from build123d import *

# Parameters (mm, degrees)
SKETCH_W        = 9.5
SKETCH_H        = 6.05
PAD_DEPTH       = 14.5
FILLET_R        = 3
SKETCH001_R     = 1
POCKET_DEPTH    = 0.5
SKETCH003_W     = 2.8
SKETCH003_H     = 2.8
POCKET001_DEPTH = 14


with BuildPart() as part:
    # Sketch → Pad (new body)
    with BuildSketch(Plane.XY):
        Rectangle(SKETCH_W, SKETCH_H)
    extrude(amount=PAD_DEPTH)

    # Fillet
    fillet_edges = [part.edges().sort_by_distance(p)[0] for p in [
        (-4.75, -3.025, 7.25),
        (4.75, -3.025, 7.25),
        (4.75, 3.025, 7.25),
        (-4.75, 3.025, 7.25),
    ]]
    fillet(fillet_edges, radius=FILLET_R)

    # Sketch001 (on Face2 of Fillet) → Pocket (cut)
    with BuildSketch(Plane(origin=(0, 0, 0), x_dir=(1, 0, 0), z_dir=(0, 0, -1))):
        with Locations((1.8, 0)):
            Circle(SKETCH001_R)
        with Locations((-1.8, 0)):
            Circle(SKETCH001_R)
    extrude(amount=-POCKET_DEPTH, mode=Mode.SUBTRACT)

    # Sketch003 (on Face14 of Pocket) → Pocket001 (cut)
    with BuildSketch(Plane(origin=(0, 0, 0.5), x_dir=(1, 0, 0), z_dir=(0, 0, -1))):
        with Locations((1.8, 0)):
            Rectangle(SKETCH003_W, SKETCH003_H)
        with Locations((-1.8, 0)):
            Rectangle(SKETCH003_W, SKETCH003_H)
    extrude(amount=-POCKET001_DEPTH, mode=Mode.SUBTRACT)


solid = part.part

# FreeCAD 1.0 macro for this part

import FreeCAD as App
import Part
import Sketcher

V = App.Vector
Q = App.Units.Quantity


def edges_at(feature, points):
    """Names of the edges that pass closest to the given points."""
    edges = feature.Shape.Edges
    near = lambda p: min(range(len(edges)), key=lambda i: edges[i].distToShape(Part.Vertex(*p))[0])
    return sorted({f"Edge{near(p) + 1}" for p in points})


def add_polygon(sketch, points):
    """Adds a closed chain of lines whose ends are joined by coincident constraints."""
    first, n = sketch.GeometryCount, len(points)
    for a, b in zip(points, points[1:] + points[:1]):
        sketch.addGeometry(Part.LineSegment(App.Vector(*a, 0), App.Vector(*b, 0)), False)
    for i in range(n):
        sketch.addConstraint(Sketcher.Constraint("Coincident", first + i, 2, first + (i + 1) % n, 1))

doc = App.newDocument("Part")
params = doc.addObject("Spreadsheet::Sheet", "Params")
for row, (alias, value) in enumerate([
    ("sketch1_width", "9.5 mm"),
    ("sketch1_height", "6.05 mm"),
    ("pad1_length", "14.5 mm"),
    ("fillet_radius", "3 mm"),
    ("sketch2_diameter", "2 mm"),
    ("pocket1_length", "0.5 mm"),
    ("sketch3_width", "2.8 mm"),
    ("pocket2_length", "14 mm"),
], start=1):
    params.set(f"A{row}", alias)
    params.set(f"B{row}", "=" + value)
    params.setAlias(f"B{row}", alias)

body = doc.addObject("PartDesign::Body", "Body")

# Sketch on XY plane
sketch1 = body.newObject("Sketcher::SketchObject", "Sketch")
sketch1.AttachmentSupport = (doc.getObject("XY_Plane"), [""])
sketch1.MapMode = "FlatFace"
add_polygon(sketch1, [(-5, 3), (-5, -3), (5, -3), (5, 3)])  # lines 0-3
sketch1.addConstraint([
    Sketcher.Constraint("Vertical", 0),
    Sketcher.Constraint("Horizontal", 1),
    Sketcher.Constraint("Vertical", 2),
    Sketcher.Constraint("Horizontal", 3),
    Sketcher.Constraint("Symmetric", 0, 2, 2, 2, -1, 1),
    Sketcher.Constraint("DistanceX", 1, 1, 1, 2, Q("9.5 mm")),
    Sketcher.Constraint("DistanceY", 0, 2, 0, 1, Q("6.05 mm")),
])
sketch1.setExpression("Constraints[9]", "Params.sketch1_width")
sketch1.setExpression("Constraints[10]", "Params.sketch1_height")
pad1 = body.newObject("PartDesign::Pad", "Pad")
pad1.Profile = sketch1
pad1.setExpression("Length", "Params.pad1_length")
doc.recompute()

fillet = body.newObject("PartDesign::Fillet", "Fillet")
fillet.Base = (pad1, edges_at(pad1, [
    (-4.75, -3.025, 7.25),
    (4.75, -3.025, 7.25),
    (4.75, 3.025, 7.25),
    (-4.75, 3.025, 7.25),
]))
fillet.setExpression("Radius", "Params.fillet_radius")

# Sketch on XY plane
sketch2 = body.newObject("Sketcher::SketchObject", "Sketch001")
sketch2.AttachmentSupport = (doc.getObject("XY_Plane"), [""])
sketch2.MapMode = "FlatFace"
sketch2.addGeometry([
    Part.Circle(V(1.8, 0, 0), V(0, 0, 1), 1),
    Part.Circle(V(-1.8, 0, 0), V(0, 0, 1), 1),
], False)
sketch2.addConstraint([
    Sketcher.Constraint("Equal", 0, 1),
    Sketcher.Constraint("Symmetric", 0, 3, 1, 3, -1, 1),
    Sketcher.Constraint("PointOnObject", 0, 3, -1),
    Sketcher.Constraint("Diameter", 0, Q("2 mm")),
    Sketcher.Constraint("DistanceX", -1, 1, 0, 3, Q("1.8 mm")),
])
sketch2.setExpression("Constraints[3]", "Params.sketch2_diameter")
pocket1 = body.newObject("PartDesign::Pocket", "Pocket")
pocket1.Profile = sketch2
pocket1.setExpression("Length", "Params.pocket1_length")
pocket1.Reversed = True

# Sketch on XY plane
sketch3 = body.newObject("Sketcher::SketchObject", "Sketch002")
sketch3.AttachmentSupport = (doc.getObject("XY_Plane"), [""])
sketch3.MapMode = "FlatFace"
sketch3.AttachmentOffset = App.Placement(V(0, 0, 0.5), App.Rotation())
add_polygon(sketch3, [(0.4, -1.4), (0.4, 1.4), (3.2, 1.4), (3.2, -1.4)])  # lines 0-3
add_polygon(sketch3, [(-3.2, -1.4), (-3.2, 1.4), (-0.4, 1.4), (-0.4, -1.4)])  # lines 4-7
sketch3.addConstraint([
    Sketcher.Constraint("Vertical", 0),
    Sketcher.Constraint("Horizontal", 1),
    Sketcher.Constraint("Vertical", 2),
    Sketcher.Constraint("Horizontal", 3),
    Sketcher.Constraint("Vertical", 4),
    Sketcher.Constraint("Horizontal", 5),
    Sketcher.Constraint("Vertical", 6),
    Sketcher.Constraint("Horizontal", 7),
    Sketcher.Constraint("Symmetric", 2, 2, 4, 2, -1, 1),
    Sketcher.Constraint("Symmetric", 0, 2, 6, 2, -1, 1),
    Sketcher.Constraint("Horizontal", 1, 2, 4, 2),
    Sketcher.Constraint("Equal", 7, 0),
    Sketcher.Constraint("DistanceX", 1, 1, 1, 2, Q("2.8 mm")),
    Sketcher.Constraint("DistanceX", -1, 1, 0, 2, Q("0.4 mm")),
])
sketch3.setExpression("Constraints[20]", "Params.sketch3_width")
pocket2 = body.newObject("PartDesign::Pocket", "Pocket001")
pocket2.Profile = sketch3
pocket2.setExpression("Length", "Params.pocket2_length")
pocket2.Reversed = True

doc.recompute()
